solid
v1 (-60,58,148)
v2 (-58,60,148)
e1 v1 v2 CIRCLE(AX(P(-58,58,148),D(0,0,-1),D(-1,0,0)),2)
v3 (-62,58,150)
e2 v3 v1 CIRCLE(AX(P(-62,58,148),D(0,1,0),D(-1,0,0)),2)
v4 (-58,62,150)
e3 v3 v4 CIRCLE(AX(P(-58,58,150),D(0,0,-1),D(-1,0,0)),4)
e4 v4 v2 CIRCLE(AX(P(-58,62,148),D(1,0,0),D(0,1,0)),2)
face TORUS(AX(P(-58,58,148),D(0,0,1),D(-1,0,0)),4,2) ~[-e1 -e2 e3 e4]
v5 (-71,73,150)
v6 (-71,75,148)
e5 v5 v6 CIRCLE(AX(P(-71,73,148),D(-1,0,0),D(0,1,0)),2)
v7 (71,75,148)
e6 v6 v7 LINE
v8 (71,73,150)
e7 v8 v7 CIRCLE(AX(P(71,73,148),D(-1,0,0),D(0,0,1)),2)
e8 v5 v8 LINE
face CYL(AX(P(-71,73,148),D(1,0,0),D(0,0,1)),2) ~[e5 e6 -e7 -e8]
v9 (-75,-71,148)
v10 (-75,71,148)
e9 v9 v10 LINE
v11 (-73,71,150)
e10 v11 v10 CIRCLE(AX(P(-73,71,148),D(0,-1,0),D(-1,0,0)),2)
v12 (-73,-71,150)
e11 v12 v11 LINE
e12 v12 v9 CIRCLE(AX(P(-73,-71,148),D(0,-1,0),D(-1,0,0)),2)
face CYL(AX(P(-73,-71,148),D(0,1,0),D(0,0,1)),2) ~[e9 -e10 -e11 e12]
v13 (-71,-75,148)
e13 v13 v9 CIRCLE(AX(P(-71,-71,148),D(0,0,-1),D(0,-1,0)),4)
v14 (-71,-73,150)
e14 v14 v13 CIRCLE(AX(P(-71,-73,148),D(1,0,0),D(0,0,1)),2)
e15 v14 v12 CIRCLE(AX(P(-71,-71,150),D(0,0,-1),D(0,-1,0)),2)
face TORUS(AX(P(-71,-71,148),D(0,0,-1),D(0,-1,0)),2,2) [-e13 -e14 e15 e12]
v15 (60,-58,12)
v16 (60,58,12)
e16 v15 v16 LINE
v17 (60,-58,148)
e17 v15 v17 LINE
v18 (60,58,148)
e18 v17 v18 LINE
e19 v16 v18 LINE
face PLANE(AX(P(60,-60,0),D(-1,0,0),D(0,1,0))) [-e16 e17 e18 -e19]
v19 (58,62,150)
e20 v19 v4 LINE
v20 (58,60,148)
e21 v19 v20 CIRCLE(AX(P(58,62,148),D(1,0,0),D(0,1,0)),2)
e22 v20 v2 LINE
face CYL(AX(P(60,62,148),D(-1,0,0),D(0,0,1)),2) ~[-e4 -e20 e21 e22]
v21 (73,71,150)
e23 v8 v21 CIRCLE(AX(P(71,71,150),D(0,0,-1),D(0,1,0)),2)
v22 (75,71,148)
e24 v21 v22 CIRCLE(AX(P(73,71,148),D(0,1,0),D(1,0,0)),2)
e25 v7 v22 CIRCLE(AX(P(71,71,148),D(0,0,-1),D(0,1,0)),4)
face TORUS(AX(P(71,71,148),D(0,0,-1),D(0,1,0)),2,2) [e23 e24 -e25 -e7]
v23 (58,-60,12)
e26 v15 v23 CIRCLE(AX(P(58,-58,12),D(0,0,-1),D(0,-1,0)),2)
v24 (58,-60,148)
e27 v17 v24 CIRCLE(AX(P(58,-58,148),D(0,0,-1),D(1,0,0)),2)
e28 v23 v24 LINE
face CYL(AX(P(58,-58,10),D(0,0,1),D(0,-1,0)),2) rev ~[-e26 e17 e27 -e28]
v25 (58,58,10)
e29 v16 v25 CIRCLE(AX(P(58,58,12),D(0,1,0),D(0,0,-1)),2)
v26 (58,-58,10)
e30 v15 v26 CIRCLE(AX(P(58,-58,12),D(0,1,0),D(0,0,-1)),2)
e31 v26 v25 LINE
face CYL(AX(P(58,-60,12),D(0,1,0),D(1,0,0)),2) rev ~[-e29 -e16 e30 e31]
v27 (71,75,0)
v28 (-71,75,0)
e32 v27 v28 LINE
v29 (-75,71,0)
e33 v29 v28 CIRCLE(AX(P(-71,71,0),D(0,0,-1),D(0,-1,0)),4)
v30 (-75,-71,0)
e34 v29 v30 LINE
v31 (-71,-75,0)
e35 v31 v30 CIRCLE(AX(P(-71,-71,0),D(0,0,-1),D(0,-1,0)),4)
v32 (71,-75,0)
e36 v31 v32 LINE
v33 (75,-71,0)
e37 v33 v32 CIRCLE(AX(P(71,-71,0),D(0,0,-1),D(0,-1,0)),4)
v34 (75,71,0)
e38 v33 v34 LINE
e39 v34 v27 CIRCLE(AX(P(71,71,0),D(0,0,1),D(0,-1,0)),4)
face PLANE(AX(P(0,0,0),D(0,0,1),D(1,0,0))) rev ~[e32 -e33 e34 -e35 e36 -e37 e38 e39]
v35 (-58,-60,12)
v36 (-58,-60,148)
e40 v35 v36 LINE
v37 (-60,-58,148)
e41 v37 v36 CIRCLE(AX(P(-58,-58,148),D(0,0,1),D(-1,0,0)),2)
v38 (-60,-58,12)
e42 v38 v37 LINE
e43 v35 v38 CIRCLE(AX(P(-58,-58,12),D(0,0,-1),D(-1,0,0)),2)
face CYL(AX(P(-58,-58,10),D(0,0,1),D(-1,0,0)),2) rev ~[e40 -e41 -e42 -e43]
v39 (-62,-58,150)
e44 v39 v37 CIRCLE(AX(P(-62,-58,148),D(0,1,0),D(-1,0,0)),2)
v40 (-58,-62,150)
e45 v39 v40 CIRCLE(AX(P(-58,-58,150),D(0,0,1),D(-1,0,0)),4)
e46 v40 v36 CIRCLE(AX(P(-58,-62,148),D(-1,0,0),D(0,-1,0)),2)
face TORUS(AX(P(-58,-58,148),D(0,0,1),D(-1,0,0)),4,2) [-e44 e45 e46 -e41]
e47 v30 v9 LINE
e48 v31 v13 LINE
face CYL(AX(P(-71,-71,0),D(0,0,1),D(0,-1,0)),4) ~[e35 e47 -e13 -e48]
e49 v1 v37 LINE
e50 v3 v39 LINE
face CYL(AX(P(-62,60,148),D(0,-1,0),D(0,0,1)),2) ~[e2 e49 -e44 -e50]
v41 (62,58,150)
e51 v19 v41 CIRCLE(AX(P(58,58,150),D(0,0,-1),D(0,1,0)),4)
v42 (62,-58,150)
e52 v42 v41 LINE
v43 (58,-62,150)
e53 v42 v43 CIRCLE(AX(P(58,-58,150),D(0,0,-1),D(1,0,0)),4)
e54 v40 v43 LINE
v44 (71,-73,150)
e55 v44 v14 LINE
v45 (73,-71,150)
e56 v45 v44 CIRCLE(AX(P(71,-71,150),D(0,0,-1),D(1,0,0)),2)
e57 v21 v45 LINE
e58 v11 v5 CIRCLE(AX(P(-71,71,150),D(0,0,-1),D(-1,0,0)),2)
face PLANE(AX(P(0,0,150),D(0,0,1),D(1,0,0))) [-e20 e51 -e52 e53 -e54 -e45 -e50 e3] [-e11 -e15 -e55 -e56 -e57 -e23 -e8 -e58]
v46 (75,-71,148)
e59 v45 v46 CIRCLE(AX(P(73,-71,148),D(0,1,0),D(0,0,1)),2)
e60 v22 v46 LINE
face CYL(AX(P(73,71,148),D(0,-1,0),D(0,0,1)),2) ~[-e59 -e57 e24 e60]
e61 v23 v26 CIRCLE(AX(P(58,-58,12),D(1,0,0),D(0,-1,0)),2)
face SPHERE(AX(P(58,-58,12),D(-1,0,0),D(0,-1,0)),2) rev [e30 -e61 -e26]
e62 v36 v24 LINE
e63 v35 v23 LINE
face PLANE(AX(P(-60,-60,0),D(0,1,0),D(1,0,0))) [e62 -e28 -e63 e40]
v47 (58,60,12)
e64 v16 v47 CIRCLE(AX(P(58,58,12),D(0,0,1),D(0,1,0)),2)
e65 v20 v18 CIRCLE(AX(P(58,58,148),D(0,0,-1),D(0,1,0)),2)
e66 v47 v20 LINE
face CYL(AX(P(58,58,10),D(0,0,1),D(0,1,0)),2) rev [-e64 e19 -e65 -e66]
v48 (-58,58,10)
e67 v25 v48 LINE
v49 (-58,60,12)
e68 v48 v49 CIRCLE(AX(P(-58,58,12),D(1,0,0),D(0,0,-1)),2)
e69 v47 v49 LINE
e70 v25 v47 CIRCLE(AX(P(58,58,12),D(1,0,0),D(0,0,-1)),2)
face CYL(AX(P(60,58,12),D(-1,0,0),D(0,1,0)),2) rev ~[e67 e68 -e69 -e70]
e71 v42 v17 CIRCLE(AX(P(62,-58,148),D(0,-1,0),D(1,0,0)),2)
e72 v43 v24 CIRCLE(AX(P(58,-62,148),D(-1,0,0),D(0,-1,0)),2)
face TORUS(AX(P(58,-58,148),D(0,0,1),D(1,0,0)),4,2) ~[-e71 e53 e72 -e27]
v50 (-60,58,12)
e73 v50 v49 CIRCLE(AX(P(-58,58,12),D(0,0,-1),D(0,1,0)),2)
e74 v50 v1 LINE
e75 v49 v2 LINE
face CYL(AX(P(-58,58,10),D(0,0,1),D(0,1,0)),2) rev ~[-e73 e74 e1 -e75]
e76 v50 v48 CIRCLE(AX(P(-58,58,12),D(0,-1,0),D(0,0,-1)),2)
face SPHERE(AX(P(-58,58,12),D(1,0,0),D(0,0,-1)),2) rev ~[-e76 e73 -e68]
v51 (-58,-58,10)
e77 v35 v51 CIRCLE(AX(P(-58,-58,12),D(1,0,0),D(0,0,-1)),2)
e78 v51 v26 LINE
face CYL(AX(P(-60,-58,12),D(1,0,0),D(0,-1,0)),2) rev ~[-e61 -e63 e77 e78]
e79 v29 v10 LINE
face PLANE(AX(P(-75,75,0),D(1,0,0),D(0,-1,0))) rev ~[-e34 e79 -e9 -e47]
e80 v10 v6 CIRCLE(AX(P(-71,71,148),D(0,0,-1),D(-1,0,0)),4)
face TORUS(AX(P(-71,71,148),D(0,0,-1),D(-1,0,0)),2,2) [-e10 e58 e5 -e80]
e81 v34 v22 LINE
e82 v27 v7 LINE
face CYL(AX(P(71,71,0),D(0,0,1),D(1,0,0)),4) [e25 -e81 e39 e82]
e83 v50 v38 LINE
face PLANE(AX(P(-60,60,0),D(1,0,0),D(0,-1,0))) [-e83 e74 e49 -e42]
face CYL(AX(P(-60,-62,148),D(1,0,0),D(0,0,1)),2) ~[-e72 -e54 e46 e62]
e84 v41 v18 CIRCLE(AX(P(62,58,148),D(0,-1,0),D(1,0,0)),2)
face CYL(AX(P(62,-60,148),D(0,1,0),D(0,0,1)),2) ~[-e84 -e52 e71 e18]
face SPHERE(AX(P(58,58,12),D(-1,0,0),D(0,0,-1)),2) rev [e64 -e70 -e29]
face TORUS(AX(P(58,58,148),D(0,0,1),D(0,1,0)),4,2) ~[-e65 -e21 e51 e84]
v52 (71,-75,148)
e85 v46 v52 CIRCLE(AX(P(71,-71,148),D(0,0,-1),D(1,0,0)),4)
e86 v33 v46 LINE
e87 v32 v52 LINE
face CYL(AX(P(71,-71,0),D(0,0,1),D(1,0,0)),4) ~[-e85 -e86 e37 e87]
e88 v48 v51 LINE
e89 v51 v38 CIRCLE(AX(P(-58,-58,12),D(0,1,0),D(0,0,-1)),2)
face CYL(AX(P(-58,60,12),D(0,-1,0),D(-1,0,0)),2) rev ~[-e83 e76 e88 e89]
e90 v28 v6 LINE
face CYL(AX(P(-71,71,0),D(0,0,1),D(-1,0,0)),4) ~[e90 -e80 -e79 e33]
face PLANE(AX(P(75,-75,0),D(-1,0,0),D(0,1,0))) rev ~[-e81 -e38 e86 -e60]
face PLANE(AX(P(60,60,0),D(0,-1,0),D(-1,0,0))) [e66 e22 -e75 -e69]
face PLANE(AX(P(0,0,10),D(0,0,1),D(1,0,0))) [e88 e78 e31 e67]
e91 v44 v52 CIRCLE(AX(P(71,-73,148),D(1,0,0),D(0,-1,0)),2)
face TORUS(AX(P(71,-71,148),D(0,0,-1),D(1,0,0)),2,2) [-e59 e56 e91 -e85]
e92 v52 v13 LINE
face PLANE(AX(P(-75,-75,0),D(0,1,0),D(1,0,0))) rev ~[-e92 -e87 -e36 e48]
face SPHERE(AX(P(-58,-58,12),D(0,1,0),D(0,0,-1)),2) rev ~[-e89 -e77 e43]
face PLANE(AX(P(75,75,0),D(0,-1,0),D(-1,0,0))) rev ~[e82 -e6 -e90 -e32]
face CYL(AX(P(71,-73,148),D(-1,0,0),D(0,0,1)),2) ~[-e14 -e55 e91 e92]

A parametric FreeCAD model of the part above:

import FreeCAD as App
import Part
import Sketcher

V = App.Vector


def edges_at(feature, points):
    """Names of the edges that pass closest to the given points."""
    edges = feature.Shape.Edges
    near = lambda p: min(range(len(edges)), key=lambda i: edges[i].distToShape(Part.Vertex(*p))[0])
    return sorted({f"Edge{near(p) + 1}" for p in points})

doc = App.newDocument("Part")
params = doc.addObject("Spreadsheet::Sheet", "Params")
for row, (alias, value) in enumerate([
    ("sketch1_width", "120 mm"),
    ("pad1_length", "10 mm"),
    ("sketch2_width", "150 mm"),
    ("sketch2_width2", "120 mm"),
    ("pad2_length", "150 mm"),
    ("fillet_radius", "2 mm"),
    ("fillet2_radius", "4 mm"),
    ("fillet3_radius", "2 mm"),
], start=1):
    params.set(f"A{row}", alias)
    params.set(f"B{row}", "=" + value)
    params.setAlias(f"B{row}", alias)

body = doc.addObject("PartDesign::Body", "Body")

sketch1 = body.newObject("Sketcher::SketchObject", "Sketch")
sketch1.AttachmentSupport = (doc.getObject("XY_Plane"), [""])
sketch1.MapMode = "FlatFace"
sketch1.addGeometry([
    Part.LineSegment(V(60, -60, 0), V(60, 60, 0)),
    Part.LineSegment(V(60, 60, 0), V(-60, 60, 0)),
    Part.LineSegment(V(-60, 60, 0), V(-60, -60, 0)),
    Part.LineSegment(V(-60, -60, 0), V(60, -60, 0)),
], False)
sketch1.addConstraint([
    Sketcher.Constraint("Coincident", 0, 2, 1, 1),
    Sketcher.Constraint("Coincident", 1, 2, 2, 1),
    Sketcher.Constraint("Coincident", 2, 2, 3, 1),
    Sketcher.Constraint("Coincident", 3, 2, 0, 1),
    Sketcher.Constraint("Vertical", 0),
    Sketcher.Constraint("Horizontal", 1),
    Sketcher.Constraint("Vertical", 2),
    Sketcher.Constraint("Horizontal", 3),
    Sketcher.Constraint("Symmetric", 0, 2, 2, 2, -1, 1),
    Sketcher.Constraint("Equal", 3, 0),
    Sketcher.Constraint("DistanceX", 1, 2, 1, 1, 120.0),
])
sketch1.setExpression("Constraints[10]", "Params.sketch1_width")
pad1 = body.newObject("PartDesign::Pad", "Pad")
pad1.Profile = sketch1
pad1.setExpression("Length", "Params.pad1_length")

sketch2 = body.newObject("Sketcher::SketchObject", "Sketch001")
sketch2.AttachmentSupport = (doc.getObject("XY_Plane"), [""])
sketch2.MapMode = "FlatFace"
sketch2.addGeometry([
    Part.LineSegment(V(75, -75, 0), V(75, 75, 0)),
    Part.LineSegment(V(75, 75, 0), V(-75, 75, 0)),
    Part.LineSegment(V(-75, 75, 0), V(-75, -75, 0)),
    Part.LineSegment(V(-75, -75, 0), V(75, -75, 0)),
    Part.LineSegment(V(-60, 60, 0), V(60, 60, 0)),
    Part.LineSegment(V(60, 60, 0), V(60, -60, 0)),
    Part.LineSegment(V(60, -60, 0), V(-60, -60, 0)),
    Part.LineSegment(V(-60, -60, 0), V(-60, 60, 0)),
], False)
sketch2.addConstraint([
    Sketcher.Constraint("Coincident", 0, 2, 1, 1),
    Sketcher.Constraint("Coincident", 1, 2, 2, 1),
    Sketcher.Constraint("Coincident", 2, 2, 3, 1),
    Sketcher.Constraint("Coincident", 3, 2, 0, 1),
    Sketcher.Constraint("Coincident", 4, 2, 5, 1),
    Sketcher.Constraint("Coincident", 5, 2, 6, 1),
    Sketcher.Constraint("Coincident", 6, 2, 7, 1),
    Sketcher.Constraint("Coincident", 7, 2, 4, 1),
    Sketcher.Constraint("Vertical", 0),
    Sketcher.Constraint("Horizontal", 1),
    Sketcher.Constraint("Vertical", 2),
    Sketcher.Constraint("Horizontal", 3),
    Sketcher.Constraint("Horizontal", 4),
    Sketcher.Constraint("Vertical", 5),
    Sketcher.Constraint("Horizontal", 6),
    Sketcher.Constraint("Vertical", 7),
    Sketcher.Constraint("Symmetric", 0, 2, 2, 2, -1, 1),
    Sketcher.Constraint("Symmetric", 4, 2, 6, 2, -1, 1),
    Sketcher.Constraint("Equal", 3, 0),
    Sketcher.Constraint("Equal", 6, 5),
    Sketcher.Constraint("DistanceX", 1, 2, 1, 1, 150.0),
    Sketcher.Constraint("DistanceX", 4, 1, 4, 2, 120.0),
])
sketch2.setExpression("Constraints[20]", "Params.sketch2_width")
sketch2.setExpression("Constraints[21]", "Params.sketch2_width2")
pad2 = body.newObject("PartDesign::Pad", "Pad001")
pad2.Profile = sketch2
pad2.setExpression("Length", "Params.pad2_length")
doc.recompute()

fillet = body.newObject("PartDesign::Fillet", "Fillet")
fillet.Base = (pad2, edges_at(pad2, [
    (-60, 0, 150),
    (0, 60, 150),
    (60, 0, 150),
    (0, -60, 150),
    (0, 60, 10),
    (-60, 0, 10),
    (-60, 60, 80),
    (0, -60, 10),
    (-60, -60, 80),
    (60, -60, 80),
    (60, 0, 10),
    (60, 60, 80),
]))
fillet.setExpression("Radius", "Params.fillet_radius")
doc.recompute()

fillet2 = body.newObject("PartDesign::Fillet", "Fillet001")
fillet2.Base = (fillet, edges_at(fillet, [
    (75, -75, 75),
    (-75, -75, 75),
    (75, 75, 75),
    (-75, 75, 75),
]))
fillet2.setExpression("Radius", "Params.fillet2_radius")
doc.recompute()

fillet3 = body.newObject("PartDesign::Fillet", "Fillet002")
fillet3.Base = (fillet2, edges_at(fillet2, [
    (-73.828, 73.828, 150),
    (-75, 0, 150),
    (-73.828, -73.828, 150),
    (0, -75, 150),
    (73.828, -73.828, 150),
    (75, 0, 150),
    (73.828, 73.828, 150),
    (0, 75, 150),
]))
fillet3.setExpression("Radius", "Params.fillet3_radius")

doc.recompute()
